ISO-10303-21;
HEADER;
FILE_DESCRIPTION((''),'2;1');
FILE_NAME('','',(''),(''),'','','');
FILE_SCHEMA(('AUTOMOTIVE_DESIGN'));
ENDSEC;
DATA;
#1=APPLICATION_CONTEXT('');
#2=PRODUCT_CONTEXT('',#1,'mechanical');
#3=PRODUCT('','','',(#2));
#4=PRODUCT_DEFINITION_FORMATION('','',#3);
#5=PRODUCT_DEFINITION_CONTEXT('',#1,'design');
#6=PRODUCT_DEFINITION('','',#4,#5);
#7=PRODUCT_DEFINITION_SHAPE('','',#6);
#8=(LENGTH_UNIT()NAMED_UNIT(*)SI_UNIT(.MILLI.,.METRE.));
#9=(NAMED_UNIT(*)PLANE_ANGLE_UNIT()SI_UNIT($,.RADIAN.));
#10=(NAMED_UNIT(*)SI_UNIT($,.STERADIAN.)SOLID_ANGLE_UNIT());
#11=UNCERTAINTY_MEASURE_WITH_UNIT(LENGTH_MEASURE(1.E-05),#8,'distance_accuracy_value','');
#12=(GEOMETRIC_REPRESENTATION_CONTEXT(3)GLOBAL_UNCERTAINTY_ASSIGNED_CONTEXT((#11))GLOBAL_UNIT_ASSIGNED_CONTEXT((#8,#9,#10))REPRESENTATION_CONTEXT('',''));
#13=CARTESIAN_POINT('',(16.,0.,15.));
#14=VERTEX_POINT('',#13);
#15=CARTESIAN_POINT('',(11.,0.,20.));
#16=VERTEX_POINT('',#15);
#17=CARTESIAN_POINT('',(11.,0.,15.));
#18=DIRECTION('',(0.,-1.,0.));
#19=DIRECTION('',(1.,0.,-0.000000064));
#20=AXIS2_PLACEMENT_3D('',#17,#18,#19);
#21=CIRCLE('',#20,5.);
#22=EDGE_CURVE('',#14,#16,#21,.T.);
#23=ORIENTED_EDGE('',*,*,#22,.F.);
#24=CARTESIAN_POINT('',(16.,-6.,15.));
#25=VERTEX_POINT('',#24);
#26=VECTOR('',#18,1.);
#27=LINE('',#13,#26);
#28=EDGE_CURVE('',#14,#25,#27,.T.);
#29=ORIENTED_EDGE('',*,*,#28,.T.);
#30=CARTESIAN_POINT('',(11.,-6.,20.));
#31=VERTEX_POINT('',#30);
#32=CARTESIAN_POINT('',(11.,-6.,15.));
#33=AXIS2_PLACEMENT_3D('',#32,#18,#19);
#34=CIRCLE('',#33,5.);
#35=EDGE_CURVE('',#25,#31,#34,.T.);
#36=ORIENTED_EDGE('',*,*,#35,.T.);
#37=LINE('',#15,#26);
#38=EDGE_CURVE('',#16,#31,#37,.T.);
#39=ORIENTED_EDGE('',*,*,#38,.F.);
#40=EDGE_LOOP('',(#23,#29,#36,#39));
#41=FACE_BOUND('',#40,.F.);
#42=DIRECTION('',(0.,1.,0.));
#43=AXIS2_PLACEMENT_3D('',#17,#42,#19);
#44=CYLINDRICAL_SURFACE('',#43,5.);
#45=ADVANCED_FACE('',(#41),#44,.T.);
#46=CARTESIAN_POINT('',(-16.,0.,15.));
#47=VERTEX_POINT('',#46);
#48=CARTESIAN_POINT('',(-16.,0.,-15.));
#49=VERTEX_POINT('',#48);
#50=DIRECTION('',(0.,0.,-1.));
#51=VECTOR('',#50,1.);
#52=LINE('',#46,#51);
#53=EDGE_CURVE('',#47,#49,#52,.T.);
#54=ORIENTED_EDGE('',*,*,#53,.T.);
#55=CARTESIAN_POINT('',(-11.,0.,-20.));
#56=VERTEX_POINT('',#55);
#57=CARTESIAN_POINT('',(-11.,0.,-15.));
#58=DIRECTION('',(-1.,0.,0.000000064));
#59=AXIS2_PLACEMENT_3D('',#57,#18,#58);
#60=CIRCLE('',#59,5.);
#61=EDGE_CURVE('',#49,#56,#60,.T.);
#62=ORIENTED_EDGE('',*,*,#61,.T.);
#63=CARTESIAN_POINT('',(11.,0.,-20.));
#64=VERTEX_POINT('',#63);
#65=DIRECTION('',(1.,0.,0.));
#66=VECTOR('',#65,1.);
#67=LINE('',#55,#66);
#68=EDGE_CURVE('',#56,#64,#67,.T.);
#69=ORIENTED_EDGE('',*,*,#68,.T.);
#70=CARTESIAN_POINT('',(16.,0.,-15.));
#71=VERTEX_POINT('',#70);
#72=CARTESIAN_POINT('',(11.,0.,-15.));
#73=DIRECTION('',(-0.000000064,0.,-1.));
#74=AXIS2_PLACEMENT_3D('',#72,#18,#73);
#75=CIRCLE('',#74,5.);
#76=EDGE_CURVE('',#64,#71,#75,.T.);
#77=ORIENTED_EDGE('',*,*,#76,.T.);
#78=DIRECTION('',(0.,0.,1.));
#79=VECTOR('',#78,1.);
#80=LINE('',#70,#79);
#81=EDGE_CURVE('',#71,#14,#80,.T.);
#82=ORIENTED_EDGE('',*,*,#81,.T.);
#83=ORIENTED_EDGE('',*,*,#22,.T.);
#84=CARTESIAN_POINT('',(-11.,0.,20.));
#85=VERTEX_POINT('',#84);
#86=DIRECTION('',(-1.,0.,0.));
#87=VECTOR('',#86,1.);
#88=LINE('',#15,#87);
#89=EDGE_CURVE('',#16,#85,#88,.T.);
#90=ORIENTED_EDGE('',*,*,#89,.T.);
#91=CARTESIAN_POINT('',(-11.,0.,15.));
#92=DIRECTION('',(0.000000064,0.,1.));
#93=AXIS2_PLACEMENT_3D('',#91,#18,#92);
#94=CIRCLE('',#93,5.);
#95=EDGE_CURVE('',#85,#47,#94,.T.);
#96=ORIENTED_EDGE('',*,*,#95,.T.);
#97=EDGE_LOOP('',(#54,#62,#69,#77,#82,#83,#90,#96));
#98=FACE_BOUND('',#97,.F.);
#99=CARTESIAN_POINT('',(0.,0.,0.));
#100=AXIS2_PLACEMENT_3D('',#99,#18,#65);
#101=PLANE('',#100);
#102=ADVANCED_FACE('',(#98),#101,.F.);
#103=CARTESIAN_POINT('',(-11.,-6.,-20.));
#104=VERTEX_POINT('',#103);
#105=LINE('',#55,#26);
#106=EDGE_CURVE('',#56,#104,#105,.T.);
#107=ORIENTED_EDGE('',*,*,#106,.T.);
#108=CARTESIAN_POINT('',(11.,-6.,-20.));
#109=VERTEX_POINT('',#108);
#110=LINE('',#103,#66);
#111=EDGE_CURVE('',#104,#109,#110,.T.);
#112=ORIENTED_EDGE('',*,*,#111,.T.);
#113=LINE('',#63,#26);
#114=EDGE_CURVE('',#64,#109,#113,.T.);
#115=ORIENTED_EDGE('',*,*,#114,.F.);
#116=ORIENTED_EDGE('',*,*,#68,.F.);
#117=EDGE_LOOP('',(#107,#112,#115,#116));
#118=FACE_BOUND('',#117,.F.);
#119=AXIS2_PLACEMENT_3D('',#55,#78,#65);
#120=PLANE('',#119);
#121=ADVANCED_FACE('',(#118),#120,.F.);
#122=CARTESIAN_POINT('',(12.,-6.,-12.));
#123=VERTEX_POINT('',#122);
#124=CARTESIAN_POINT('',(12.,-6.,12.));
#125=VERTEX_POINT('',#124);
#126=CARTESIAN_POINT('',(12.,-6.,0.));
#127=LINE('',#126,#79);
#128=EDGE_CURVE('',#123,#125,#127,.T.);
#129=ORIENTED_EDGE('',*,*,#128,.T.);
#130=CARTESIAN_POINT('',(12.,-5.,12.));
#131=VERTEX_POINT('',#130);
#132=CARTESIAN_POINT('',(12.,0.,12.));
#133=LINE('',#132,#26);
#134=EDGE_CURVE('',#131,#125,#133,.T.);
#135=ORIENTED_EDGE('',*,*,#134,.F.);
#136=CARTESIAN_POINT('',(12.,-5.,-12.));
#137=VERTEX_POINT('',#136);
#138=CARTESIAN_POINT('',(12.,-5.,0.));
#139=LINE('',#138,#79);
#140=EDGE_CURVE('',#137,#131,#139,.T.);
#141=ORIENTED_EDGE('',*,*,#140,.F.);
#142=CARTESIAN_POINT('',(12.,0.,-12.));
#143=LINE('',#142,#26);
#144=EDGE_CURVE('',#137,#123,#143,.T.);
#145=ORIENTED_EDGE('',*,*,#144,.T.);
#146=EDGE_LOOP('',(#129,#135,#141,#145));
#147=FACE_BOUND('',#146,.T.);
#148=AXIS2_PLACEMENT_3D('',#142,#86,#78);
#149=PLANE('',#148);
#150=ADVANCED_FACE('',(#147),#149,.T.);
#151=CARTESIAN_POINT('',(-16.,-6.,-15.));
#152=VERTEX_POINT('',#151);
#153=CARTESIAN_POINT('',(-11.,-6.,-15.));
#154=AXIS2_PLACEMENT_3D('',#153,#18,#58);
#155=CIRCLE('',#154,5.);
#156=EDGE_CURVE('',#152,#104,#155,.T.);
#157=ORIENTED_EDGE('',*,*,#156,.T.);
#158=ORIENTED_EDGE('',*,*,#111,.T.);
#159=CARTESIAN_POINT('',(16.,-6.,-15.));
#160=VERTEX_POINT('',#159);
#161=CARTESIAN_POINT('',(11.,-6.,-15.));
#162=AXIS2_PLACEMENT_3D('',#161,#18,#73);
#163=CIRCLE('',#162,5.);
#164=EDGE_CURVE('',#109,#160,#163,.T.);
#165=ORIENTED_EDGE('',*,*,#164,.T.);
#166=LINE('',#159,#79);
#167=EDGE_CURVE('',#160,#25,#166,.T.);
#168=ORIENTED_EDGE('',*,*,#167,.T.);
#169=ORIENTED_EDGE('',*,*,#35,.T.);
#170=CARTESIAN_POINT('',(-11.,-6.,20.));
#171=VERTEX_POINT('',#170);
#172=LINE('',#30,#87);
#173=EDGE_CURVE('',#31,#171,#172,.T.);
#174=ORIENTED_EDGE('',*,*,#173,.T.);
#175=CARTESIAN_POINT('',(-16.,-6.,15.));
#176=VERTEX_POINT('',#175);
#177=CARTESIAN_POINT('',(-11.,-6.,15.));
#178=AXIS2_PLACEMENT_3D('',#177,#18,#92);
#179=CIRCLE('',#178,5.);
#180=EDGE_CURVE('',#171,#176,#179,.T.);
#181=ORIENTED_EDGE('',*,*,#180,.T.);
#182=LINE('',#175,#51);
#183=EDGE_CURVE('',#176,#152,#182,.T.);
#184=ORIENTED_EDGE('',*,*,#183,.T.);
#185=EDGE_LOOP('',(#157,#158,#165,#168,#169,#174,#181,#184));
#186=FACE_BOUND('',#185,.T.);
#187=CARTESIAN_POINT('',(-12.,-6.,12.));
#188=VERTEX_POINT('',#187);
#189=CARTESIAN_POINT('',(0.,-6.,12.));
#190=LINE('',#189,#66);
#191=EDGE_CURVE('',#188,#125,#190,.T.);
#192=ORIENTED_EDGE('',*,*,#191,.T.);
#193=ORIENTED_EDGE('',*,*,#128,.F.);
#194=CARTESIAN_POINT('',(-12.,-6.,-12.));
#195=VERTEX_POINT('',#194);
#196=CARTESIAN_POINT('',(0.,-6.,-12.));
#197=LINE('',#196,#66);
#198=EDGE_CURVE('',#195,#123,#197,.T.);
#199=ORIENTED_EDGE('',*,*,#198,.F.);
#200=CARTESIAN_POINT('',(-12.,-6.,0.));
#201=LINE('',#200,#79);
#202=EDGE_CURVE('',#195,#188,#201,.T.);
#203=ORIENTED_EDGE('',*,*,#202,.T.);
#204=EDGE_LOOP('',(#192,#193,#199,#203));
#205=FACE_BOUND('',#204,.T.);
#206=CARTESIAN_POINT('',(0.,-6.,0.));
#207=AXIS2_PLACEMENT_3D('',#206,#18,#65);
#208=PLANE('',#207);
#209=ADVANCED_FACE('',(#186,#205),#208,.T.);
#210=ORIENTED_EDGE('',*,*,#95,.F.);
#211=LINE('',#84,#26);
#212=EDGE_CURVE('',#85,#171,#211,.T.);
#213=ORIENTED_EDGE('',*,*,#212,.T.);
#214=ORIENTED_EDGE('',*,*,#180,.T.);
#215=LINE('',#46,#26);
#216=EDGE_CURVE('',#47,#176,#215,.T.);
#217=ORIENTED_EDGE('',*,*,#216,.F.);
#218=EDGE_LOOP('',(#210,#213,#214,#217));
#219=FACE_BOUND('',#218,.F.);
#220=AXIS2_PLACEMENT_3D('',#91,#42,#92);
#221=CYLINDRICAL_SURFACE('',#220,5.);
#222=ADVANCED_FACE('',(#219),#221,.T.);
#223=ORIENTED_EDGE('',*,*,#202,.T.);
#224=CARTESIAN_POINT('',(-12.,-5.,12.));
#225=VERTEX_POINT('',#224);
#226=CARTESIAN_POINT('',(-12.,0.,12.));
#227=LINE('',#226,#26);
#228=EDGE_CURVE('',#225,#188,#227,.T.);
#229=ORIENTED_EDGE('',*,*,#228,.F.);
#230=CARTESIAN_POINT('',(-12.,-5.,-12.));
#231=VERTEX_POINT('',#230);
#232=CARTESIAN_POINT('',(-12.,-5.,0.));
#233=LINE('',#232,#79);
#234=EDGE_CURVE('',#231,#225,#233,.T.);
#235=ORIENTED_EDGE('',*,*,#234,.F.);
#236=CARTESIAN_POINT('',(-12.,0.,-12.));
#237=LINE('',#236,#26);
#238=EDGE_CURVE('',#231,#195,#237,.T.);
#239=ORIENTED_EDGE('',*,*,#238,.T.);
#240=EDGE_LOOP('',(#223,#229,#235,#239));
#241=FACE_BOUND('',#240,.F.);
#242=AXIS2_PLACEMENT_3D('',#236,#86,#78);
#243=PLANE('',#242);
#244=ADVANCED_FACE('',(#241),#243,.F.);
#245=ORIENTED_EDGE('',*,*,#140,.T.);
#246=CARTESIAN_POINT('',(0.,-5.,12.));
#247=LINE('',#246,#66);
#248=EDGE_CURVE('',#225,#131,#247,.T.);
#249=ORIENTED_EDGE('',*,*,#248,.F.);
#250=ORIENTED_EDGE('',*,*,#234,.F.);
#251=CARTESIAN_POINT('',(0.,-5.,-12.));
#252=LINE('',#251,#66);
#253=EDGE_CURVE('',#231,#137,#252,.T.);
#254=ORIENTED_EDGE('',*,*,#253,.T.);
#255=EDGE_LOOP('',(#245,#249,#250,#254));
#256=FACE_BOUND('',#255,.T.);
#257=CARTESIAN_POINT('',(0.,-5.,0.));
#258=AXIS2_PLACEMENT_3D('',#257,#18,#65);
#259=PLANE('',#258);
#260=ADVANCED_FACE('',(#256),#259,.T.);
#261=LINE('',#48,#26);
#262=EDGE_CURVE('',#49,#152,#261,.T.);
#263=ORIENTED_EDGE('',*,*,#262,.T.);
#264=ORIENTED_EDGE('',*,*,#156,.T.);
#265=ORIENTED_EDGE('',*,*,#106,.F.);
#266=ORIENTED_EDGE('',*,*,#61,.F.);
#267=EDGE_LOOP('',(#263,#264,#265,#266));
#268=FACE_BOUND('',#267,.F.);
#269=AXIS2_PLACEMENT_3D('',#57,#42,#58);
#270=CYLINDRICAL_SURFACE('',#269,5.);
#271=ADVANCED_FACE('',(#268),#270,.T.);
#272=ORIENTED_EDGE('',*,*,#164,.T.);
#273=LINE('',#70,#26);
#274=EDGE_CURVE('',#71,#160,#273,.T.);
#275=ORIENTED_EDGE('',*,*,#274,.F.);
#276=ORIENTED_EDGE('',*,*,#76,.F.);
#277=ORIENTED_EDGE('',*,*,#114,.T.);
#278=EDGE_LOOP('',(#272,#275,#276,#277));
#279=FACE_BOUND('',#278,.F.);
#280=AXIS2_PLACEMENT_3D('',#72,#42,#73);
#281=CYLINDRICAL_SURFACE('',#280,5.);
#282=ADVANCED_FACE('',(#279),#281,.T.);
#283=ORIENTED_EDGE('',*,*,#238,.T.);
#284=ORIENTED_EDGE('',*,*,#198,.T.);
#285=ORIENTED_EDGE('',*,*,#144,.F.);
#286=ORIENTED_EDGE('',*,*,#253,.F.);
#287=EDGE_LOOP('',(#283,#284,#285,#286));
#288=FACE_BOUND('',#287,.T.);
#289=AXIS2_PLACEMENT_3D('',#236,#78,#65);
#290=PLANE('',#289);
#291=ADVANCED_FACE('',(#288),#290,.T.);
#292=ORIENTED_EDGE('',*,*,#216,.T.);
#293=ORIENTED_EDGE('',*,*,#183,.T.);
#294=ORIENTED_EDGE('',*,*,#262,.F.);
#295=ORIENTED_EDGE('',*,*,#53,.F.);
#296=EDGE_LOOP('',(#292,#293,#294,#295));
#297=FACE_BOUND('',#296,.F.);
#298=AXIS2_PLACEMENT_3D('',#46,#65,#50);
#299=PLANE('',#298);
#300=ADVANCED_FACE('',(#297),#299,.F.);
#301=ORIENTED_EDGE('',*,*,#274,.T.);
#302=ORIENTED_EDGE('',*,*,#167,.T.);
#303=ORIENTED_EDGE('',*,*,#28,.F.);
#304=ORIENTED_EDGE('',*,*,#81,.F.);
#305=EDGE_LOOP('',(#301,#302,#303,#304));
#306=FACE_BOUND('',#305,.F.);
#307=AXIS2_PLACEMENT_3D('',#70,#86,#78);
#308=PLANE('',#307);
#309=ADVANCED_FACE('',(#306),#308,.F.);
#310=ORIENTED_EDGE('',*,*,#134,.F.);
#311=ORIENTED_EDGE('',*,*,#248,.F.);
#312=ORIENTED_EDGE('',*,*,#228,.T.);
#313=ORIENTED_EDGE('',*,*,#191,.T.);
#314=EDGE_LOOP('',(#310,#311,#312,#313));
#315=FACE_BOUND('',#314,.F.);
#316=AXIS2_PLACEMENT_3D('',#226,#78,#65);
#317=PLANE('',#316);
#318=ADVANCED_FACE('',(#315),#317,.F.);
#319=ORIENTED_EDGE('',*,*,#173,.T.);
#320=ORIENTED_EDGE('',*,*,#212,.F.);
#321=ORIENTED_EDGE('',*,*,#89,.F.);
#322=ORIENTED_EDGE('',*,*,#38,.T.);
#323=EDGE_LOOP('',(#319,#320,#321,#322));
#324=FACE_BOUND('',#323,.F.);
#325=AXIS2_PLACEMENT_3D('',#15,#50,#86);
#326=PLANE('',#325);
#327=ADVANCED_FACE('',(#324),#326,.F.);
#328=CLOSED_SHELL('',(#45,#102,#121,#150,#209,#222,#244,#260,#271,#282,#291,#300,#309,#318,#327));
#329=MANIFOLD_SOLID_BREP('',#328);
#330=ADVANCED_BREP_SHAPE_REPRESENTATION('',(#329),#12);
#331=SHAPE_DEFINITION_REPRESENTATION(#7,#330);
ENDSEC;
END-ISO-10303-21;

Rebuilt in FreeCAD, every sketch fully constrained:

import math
import FreeCAD as App
import Part
import Sketcher
Q = App.Units.Quantity

doc = App.newDocument("Part")
body = doc.addObject("PartDesign::Body", "Body")

sketch1 = body.newObject("Sketcher::SketchObject", "Sketch")
sketch1.AttachmentSupport = (doc.getObject("XZ_Plane"), [""])
sketch1.MapMode = "FlatFace"
sketch1.addGeometry([
    Part.LineSegment(App.Vector(11, 20, 0), App.Vector(-11, 20, 0)),
    Part.ArcOfCircle(Part.Circle(App.Vector(-11, 15, 0), App.Vector(0, 0, 1), 5), math.radians(90), math.radians(180)),
    Part.LineSegment(App.Vector(-16, 15, 0), App.Vector(-16, -15, 0)),
    Part.ArcOfCircle(Part.Circle(App.Vector(-11, -15, 0), App.Vector(0, 0, 1), 5), math.radians(180), math.radians(270)),
    Part.LineSegment(App.Vector(-11, -20, 0), App.Vector(11, -20, 0)),
    Part.ArcOfCircle(Part.Circle(App.Vector(11, -15, 0), App.Vector(0, 0, 1), 5), math.radians(-90), math.radians(0)),
    Part.LineSegment(App.Vector(16, -15, 0), App.Vector(16, 15, 0)),
    Part.ArcOfCircle(Part.Circle(App.Vector(11, 15, 0), App.Vector(0, 0, 1), 5), math.radians(0), math.radians(90)),
    Part.LineSegment(App.Vector(12, -12, 0), App.Vector(-12, -12, 0)),
    Part.LineSegment(App.Vector(-12, -12, 0), App.Vector(-12, 12, 0)),
    Part.LineSegment(App.Vector(-12, 12, 0), App.Vector(12, 12, 0)),
    Part.LineSegment(App.Vector(12, 12, 0), App.Vector(12, -12, 0)),
], False)
sketch1.addConstraint([
    Sketcher.Constraint("Tangent", 0, 2, 1, 1),
    Sketcher.Constraint("Tangent", 1, 2, 2, 1),
    Sketcher.Constraint("Tangent", 2, 2, 3, 1),
    Sketcher.Constraint("Tangent", 3, 2, 4, 1),
    Sketcher.Constraint("Tangent", 4, 2, 5, 1),
    Sketcher.Constraint("Tangent", 5, 2, 6, 1),
    Sketcher.Constraint("Tangent", 6, 2, 7, 1),
    Sketcher.Constraint("Tangent", 7, 2, 0, 1),
    Sketcher.Constraint("Coincident", 8, 2, 9, 1),
    Sketcher.Constraint("Coincident", 9, 2, 10, 1),
    Sketcher.Constraint("Coincident", 10, 2, 11, 1),
    Sketcher.Constraint("Coincident", 11, 2, 8, 1),
    Sketcher.Constraint("Horizontal", 0),
    Sketcher.Constraint("Vertical", 2),
    Sketcher.Constraint("Horizontal", 4),
    Sketcher.Constraint("Vertical", 6),
    Sketcher.Constraint("Horizontal", 8),
    Sketcher.Constraint("Vertical", 9),
    Sketcher.Constraint("Horizontal", 10),
    Sketcher.Constraint("Vertical", 11),
    Sketcher.Constraint("Equal", 1, 3),
    Sketcher.Constraint("Equal", 3, 5),
    Sketcher.Constraint("Equal", 5, 7),
    Sketcher.Constraint("Symmetric", 1, 3, 5, 3, -1, 1),
    Sketcher.Constraint("Symmetric", 8, 2, 10, 2, -1, 1),
    Sketcher.Constraint("Equal", 10, 9),
    Sketcher.Constraint("Radius", 1, Q("5 mm")),
    Sketcher.Constraint("DistanceX", 0, 2, 0, 1, Q("22 mm")),
    Sketcher.Constraint("DistanceX", 8, 2, 8, 1, Q("24 mm")),
    Sketcher.Constraint("DistanceY", 2, 2, 2, 1, Q("30 mm")),
])
pad1 = body.newObject("PartDesign::Pad", "Pad")
pad1.Profile = sketch1
pad1.Length = 6

sketch2 = body.newObject("Sketcher::SketchObject", "Sketch001")
sketch2.AttachmentSupport = (doc.getObject("XZ_Plane"), [""])
sketch2.MapMode = "FlatFace"
sketch2.addGeometry([
    Part.LineSegment(App.Vector(-12, 12, 0), App.Vector(-12, -12, 0)),
    Part.LineSegment(App.Vector(-12, -12, 0), App.Vector(12, -12, 0)),
    Part.LineSegment(App.Vector(12, -12, 0), App.Vector(12, 12, 0)),
    Part.LineSegment(App.Vector(12, 12, 0), App.Vector(-12, 12, 0)),
], False)
sketch2.addConstraint([
    Sketcher.Constraint("Coincident", 0, 2, 1, 1),
    Sketcher.Constraint("Coincident", 1, 2, 2, 1),
    Sketcher.Constraint("Coincident", 2, 2, 3, 1),
    Sketcher.Constraint("Coincident", 3, 2, 0, 1),
    Sketcher.Constraint("Vertical", 0),
    Sketcher.Constraint("Horizontal", 1),
    Sketcher.Constraint("Vertical", 2),
    Sketcher.Constraint("Horizontal", 3),
    Sketcher.Constraint("Symmetric", 0, 2, 2, 2, -1, 1),
    Sketcher.Constraint("Equal", 3, 0),
    Sketcher.Constraint("DistanceX", 1, 1, 1, 2, Q("24 mm")),
])
pad2 = body.newObject("PartDesign::Pad", "Pad001")
pad2.Profile = sketch2
pad2.Length = 5

doc.recompute()
